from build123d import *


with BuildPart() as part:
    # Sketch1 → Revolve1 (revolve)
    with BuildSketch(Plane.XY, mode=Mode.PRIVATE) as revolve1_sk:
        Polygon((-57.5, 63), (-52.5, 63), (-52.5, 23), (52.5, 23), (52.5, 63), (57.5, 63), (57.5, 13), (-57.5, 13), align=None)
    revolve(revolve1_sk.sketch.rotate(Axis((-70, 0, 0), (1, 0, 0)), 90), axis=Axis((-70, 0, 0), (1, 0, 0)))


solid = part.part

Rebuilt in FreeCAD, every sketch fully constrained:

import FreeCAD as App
import Part
import Sketcher

V = App.Vector
Q = App.Units.Quantity


def add_polygon(sketch, points):
    """Adds a closed chain of lines whose ends are joined by coincident constraints."""
    first, n = sketch.GeometryCount, len(points)
    for a, b in zip(points, points[1:] + points[:1]):
        sketch.addGeometry(Part.LineSegment(App.Vector(*a, 0), App.Vector(*b, 0)), False)
    for i in range(n):
        sketch.addConstraint(Sketcher.Constraint("Coincident", first + i, 2, first + (i + 1) % n, 1))

doc = App.newDocument("Part")
body = doc.addObject("PartDesign::Body", "Body")

sketch1 = doc.addObject("Sketcher::SketchObject", "Sketch")
body.addObject(sketch1)
sketch1.AttachmentSupport = (doc.XY_Plane, [""])
sketch1.MapMode = "FlatFace"
add_polygon(sketch1, [(-52, 63), (-58, 63), (-58, 13), (58, 13), (58, 63), (52, 63), (52, 23), (-52, 23)])
sketch1.addConstraint([
    Sketcher.Constraint("Horizontal", 0),
    Sketcher.Constraint("Vertical", 1),
    Sketcher.Constraint("Horizontal", 2),
    Sketcher.Constraint("Vertical", 3),
    Sketcher.Constraint("Horizontal", 4),
    Sketcher.Constraint("Vertical", 5),
    Sketcher.Constraint("Horizontal", 6),
    Sketcher.Constraint("Vertical", 7),
    Sketcher.Constraint("Symmetric", 0, 2, 3, 2, -2),
    Sketcher.Constraint("Equal", 0, 4),
    Sketcher.Constraint("DistanceX", 0, 2, 0, 1, Q("5 mm")),
    Sketcher.Constraint("DistanceX", 2, 1, 2, 2, Q("115 mm")),
    Sketcher.Constraint("DistanceY", 1, 2, 1, 1, Q("50 mm")),
    Sketcher.Constraint("DistanceY", 5, 2, 5, 1, Q("40 mm")),
    Sketcher.Constraint("DistanceY", -1, 1, 0, 2, Q("63 mm")),
])
revolution = doc.addObject("PartDesign::Revolution", "Revolution")
body.addObject(revolution)
revolution.Profile = sketch1
revolution.ReferenceAxis = (sketch1, ["H_Axis"])
revolution.Angle = 360

doc.recompute()
